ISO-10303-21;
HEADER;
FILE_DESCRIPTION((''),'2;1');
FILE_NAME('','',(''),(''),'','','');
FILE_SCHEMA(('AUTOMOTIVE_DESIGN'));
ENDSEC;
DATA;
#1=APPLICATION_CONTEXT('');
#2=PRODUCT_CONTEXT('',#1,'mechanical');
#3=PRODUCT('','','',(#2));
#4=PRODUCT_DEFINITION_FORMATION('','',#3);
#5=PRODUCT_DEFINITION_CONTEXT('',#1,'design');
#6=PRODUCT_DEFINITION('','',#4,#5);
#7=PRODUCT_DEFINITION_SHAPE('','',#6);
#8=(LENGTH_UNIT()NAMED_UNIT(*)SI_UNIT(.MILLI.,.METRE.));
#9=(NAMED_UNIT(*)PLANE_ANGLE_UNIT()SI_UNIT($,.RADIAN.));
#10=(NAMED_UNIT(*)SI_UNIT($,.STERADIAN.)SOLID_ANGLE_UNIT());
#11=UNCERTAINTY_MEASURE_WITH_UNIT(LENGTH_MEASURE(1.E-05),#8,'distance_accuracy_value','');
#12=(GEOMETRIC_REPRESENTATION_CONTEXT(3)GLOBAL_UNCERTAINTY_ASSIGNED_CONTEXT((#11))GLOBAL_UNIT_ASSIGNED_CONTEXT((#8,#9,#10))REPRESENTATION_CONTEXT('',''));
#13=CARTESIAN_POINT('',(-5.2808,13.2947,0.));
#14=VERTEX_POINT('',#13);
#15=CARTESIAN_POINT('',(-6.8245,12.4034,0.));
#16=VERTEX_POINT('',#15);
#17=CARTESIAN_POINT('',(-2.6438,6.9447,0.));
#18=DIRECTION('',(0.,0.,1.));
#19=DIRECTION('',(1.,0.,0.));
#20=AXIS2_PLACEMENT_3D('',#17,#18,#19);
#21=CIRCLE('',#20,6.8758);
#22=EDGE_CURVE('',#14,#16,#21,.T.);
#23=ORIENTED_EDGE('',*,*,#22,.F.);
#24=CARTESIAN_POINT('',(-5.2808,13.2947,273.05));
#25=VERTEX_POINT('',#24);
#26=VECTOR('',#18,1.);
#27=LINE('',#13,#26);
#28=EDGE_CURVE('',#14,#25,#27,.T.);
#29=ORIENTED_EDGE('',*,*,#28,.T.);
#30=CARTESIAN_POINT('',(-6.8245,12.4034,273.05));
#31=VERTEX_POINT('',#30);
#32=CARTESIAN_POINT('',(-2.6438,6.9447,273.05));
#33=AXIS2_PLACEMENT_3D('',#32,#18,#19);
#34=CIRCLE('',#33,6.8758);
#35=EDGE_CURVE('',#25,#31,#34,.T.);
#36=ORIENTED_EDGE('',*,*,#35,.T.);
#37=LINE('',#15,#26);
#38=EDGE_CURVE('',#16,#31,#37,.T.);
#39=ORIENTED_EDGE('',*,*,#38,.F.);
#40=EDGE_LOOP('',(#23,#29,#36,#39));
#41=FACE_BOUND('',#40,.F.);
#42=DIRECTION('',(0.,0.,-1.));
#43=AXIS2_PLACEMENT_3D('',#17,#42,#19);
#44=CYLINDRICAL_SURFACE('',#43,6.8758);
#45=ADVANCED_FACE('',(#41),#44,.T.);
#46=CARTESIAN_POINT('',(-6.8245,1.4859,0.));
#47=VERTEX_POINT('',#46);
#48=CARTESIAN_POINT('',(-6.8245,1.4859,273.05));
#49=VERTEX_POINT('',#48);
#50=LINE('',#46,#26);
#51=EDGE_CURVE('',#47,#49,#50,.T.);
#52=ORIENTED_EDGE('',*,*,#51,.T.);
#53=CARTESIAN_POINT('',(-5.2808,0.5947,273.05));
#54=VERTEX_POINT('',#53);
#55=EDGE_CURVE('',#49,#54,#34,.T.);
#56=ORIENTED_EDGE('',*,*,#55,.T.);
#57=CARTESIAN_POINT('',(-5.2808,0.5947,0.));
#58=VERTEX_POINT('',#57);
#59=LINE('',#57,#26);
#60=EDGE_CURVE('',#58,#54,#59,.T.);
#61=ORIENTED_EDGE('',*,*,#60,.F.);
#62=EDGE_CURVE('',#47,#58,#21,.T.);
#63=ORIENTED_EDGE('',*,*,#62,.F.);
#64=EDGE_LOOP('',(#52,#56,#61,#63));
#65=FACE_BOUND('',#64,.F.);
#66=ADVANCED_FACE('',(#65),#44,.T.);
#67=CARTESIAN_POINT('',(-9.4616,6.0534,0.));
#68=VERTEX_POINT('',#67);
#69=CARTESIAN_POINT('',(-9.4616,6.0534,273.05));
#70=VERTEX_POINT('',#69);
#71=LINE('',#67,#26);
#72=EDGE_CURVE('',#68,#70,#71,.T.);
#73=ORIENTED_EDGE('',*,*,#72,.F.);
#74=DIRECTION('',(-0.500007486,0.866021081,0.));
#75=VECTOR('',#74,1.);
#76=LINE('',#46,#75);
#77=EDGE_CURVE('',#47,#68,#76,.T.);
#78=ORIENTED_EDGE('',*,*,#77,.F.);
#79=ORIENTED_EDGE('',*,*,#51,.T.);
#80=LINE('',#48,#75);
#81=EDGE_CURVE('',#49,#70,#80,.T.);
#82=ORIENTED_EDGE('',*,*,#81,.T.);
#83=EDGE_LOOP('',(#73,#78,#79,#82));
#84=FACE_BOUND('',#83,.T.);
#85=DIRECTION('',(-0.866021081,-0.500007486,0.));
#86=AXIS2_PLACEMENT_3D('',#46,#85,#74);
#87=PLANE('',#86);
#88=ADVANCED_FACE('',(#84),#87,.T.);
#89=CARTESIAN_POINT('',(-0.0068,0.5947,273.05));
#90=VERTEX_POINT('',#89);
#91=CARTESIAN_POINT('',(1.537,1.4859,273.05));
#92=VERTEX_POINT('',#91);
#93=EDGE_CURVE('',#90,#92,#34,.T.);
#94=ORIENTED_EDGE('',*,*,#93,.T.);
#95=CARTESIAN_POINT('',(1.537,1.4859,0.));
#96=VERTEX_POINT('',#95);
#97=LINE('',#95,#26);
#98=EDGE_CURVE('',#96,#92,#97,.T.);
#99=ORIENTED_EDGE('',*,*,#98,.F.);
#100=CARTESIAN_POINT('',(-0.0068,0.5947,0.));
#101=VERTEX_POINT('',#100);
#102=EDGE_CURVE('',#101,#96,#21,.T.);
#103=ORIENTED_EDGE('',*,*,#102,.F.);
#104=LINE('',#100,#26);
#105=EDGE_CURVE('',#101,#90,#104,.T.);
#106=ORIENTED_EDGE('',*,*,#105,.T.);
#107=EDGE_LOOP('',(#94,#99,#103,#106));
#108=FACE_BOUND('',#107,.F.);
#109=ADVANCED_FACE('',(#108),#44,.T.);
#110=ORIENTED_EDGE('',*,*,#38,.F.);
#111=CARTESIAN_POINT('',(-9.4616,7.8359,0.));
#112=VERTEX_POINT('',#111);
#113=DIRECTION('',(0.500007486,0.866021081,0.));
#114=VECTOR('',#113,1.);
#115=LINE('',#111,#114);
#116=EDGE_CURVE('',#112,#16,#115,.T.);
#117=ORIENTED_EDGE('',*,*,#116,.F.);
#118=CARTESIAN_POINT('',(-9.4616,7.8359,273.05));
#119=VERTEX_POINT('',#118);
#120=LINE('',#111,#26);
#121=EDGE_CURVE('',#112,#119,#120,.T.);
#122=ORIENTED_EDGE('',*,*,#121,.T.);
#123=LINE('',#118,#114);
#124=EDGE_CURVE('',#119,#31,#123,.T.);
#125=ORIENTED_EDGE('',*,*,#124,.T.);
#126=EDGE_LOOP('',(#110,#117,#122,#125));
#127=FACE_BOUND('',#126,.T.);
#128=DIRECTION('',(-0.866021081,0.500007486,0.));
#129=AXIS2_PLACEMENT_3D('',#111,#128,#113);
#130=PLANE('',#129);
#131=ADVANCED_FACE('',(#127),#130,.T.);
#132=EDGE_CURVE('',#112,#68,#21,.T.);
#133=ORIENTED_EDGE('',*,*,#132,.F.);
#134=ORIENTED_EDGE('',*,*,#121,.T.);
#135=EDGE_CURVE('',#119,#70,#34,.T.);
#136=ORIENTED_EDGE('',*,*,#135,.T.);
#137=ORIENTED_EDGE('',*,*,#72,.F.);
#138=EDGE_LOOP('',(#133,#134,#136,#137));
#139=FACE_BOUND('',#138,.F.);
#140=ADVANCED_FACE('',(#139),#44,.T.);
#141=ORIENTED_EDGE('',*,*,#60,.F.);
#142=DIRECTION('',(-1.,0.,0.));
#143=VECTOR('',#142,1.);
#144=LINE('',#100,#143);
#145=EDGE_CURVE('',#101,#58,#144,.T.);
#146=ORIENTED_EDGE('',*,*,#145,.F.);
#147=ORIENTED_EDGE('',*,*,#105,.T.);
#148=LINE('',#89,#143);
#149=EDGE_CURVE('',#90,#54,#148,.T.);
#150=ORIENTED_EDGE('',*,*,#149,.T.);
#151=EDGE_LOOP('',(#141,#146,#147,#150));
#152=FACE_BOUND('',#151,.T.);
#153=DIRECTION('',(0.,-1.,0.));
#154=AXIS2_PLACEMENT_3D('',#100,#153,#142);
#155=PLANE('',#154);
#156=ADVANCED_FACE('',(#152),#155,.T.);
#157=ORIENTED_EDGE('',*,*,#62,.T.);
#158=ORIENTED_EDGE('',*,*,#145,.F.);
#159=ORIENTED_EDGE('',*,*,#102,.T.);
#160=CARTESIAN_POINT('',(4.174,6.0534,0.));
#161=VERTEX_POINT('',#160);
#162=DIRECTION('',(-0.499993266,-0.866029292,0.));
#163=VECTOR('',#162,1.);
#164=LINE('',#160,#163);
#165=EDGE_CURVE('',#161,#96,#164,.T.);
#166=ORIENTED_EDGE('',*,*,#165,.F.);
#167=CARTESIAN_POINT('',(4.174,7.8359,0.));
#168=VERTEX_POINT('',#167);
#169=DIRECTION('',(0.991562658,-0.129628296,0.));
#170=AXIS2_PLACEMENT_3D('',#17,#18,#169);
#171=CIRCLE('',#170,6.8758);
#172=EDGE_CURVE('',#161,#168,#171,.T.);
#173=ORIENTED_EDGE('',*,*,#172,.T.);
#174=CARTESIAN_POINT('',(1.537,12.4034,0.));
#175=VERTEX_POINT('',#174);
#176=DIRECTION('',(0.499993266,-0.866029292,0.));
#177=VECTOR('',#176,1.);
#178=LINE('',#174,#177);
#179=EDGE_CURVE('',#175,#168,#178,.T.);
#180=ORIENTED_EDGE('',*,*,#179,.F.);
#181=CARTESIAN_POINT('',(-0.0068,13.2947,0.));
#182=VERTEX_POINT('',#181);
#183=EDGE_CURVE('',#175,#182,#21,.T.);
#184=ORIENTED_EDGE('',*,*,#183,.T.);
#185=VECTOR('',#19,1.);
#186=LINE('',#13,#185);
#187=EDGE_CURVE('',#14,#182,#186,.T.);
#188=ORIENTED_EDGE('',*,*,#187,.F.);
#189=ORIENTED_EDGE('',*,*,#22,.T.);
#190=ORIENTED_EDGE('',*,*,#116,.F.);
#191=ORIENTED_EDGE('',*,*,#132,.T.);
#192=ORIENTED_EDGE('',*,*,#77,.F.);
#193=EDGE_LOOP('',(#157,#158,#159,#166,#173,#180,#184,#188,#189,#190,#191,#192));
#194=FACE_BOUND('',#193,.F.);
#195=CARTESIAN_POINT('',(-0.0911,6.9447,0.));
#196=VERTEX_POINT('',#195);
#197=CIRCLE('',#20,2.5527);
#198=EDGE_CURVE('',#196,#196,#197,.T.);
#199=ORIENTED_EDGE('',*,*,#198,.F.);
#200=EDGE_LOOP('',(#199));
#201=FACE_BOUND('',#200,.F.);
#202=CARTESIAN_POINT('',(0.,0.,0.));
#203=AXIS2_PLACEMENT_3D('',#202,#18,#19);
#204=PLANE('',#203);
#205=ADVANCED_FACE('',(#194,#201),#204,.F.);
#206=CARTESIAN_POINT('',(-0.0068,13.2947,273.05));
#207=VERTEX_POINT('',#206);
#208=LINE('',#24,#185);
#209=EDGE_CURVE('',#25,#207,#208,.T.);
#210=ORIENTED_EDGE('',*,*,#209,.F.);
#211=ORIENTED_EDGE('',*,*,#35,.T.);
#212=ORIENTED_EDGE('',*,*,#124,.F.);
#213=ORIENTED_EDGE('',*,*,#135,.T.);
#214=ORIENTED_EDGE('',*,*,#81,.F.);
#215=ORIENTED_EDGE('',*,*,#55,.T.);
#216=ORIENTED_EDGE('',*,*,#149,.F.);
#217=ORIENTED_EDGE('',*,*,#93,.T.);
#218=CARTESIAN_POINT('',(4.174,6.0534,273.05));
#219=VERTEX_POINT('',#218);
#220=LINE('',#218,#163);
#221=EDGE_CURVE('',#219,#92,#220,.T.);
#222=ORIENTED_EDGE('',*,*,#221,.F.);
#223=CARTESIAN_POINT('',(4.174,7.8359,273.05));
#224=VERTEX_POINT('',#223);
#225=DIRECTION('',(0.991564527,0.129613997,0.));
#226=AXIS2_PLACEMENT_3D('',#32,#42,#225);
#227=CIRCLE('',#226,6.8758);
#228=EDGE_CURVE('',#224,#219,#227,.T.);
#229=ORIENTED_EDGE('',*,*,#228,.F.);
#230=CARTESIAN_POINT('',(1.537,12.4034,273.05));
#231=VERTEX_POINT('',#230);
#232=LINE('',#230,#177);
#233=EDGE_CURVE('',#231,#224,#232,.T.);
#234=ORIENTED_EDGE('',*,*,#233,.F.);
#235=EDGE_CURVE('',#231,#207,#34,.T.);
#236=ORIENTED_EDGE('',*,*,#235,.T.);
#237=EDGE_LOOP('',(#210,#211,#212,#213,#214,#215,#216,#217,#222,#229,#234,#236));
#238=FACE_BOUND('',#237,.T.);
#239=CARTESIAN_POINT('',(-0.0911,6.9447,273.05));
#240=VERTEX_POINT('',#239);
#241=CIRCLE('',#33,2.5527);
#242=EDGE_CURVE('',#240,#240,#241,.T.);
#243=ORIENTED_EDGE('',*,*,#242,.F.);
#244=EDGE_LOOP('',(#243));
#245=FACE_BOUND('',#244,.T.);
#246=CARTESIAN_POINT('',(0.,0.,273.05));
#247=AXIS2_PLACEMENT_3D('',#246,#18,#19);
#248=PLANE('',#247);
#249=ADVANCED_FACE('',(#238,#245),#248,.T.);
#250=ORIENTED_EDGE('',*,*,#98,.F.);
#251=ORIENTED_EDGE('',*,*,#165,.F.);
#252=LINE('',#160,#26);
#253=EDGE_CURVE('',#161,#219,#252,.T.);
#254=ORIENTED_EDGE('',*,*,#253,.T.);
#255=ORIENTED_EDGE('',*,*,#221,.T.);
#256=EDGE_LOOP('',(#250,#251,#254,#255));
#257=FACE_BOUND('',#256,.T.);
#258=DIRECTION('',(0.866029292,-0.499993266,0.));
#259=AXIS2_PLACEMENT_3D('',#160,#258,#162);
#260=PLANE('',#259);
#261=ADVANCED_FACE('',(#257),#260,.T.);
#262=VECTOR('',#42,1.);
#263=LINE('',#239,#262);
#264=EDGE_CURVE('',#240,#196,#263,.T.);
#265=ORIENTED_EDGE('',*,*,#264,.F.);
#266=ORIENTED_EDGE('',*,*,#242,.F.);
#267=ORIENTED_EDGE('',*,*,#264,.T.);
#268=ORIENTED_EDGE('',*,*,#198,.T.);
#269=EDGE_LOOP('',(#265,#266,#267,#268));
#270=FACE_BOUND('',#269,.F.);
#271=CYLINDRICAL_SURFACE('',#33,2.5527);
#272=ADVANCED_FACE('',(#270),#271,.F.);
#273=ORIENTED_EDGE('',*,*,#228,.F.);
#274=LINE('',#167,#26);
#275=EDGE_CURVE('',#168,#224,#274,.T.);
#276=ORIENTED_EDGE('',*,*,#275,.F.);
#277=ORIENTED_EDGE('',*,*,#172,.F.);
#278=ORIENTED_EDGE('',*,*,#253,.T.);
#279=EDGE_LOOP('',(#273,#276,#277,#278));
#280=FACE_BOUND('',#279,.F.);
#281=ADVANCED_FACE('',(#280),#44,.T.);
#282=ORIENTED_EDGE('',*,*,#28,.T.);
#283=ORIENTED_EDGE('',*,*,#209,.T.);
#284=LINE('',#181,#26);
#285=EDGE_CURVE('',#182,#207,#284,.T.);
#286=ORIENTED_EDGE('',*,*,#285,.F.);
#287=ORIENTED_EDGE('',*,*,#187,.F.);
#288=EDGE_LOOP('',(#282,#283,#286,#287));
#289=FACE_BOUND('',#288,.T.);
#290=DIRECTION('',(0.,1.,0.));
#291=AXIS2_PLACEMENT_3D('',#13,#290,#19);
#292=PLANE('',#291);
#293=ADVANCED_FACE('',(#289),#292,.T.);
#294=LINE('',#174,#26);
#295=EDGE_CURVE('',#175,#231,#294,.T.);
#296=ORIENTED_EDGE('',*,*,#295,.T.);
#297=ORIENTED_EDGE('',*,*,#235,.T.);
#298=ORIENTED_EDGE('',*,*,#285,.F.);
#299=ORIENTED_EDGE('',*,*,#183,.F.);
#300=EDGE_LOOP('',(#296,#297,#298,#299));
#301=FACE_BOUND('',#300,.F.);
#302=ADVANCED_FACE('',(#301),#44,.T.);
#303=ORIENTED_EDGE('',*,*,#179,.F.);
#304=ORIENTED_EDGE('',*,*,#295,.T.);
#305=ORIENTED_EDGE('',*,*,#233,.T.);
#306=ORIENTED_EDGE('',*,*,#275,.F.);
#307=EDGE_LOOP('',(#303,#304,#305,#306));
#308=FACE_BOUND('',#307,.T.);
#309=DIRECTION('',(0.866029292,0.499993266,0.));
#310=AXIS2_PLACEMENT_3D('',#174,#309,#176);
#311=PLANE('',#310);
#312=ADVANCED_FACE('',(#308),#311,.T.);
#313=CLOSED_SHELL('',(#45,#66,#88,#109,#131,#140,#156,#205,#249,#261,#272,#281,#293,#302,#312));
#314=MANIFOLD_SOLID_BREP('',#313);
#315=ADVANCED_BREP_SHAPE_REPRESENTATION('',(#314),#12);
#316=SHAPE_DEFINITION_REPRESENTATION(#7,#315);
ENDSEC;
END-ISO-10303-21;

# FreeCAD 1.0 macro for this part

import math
import FreeCAD as App
import Part
import Sketcher
Q = App.Units.Quantity

doc = App.newDocument("Part")
params = doc.addObject("Spreadsheet::Sheet", "Params")
for row, (alias, value) in enumerate([
    ("pad1_length", "10.75 in"),
    ("sketch2_diameter", "0.201 in"),
    ("pocket1_length", "10.75 in"),
], start=1):
    params.set(f"A{row}", alias)
    params.set(f"B{row}", "=" + value)
    params.setAlias(f"B{row}", alias)

body = doc.addObject("PartDesign::Body", "Body")

sketch1 = body.newObject("Sketcher::SketchObject", "Sketch")
sketch1.AttachmentSupport = (doc.getObject("XY_Plane"), [""])
sketch1.MapMode = "FlatFace"
sketch1.addGeometry([
    Part.ArcOfCircle(Part.Circle(App.Vector(-2.6438, 6.9447, 0), App.Vector(0, 0, 1), 6.8758), math.radians(-7.448114), math.radians(7.447287)),
    Part.LineSegment(App.Vector(4.174, 7.8359, 0), App.Vector(1.537, 12.4034, 0)),
    Part.ArcOfCircle(Part.Circle(App.Vector(-2.6438, 6.9447, 0), App.Vector(0, 0, 1), 6.8758), math.radians(52.551618), math.radians(67.448081)),
    Part.LineSegment(App.Vector(-0.0068, 13.2947, 0), App.Vector(-5.2808, 13.2947, 0)),
    Part.ArcOfCircle(Part.Circle(App.Vector(-2.6438, 6.9447, 0), App.Vector(0, 0, 1), 6.8758), math.radians(112.551919), math.radians(127.447721)),
    Part.LineSegment(App.Vector(-6.8245, 12.4034, 0), App.Vector(-9.4616, 7.8359, 0)),
    Part.ArcOfCircle(Part.Circle(App.Vector(-2.6438, 6.9447, 0), App.Vector(0, 0, 1), 6.8758), math.radians(172.552713), math.radians(187.448114)),
    Part.LineSegment(App.Vector(-9.4616, 6.0534, 0), App.Vector(-6.8245, 1.4859, 0)),
    Part.ArcOfCircle(Part.Circle(App.Vector(-2.6438, 6.9447, 0), App.Vector(0, 0, 1), 6.8758), math.radians(-127.447214), math.radians(-112.551919)),
    Part.LineSegment(App.Vector(-5.2808, 0.5947, 0), App.Vector(-0.0068, 0.5947, 0)),
    Part.ArcOfCircle(Part.Circle(App.Vector(-2.6438, 6.9447, 0), App.Vector(0, 0, 1), 6.8758), math.radians(-67.448081), math.radians(-52.552124)),
    Part.LineSegment(App.Vector(1.537, 1.4859, 0), App.Vector(4.174, 6.0534, 0)),
], False)
sketch1.addConstraint([
    Sketcher.Constraint("Coincident", 0, 2, 1, 1),
    Sketcher.Constraint("Coincident", 1, 2, 2, 1),
    Sketcher.Constraint("Coincident", 2, 2, 3, 1),
    Sketcher.Constraint("Coincident", 3, 2, 4, 1),
    Sketcher.Constraint("Coincident", 4, 2, 5, 1),
    Sketcher.Constraint("Coincident", 5, 2, 6, 1),
    Sketcher.Constraint("Coincident", 6, 2, 7, 1),
    Sketcher.Constraint("Coincident", 7, 2, 8, 1),
    Sketcher.Constraint("Coincident", 8, 2, 9, 1),
    Sketcher.Constraint("Coincident", 9, 2, 10, 1),
    Sketcher.Constraint("Coincident", 10, 2, 11, 1),
    Sketcher.Constraint("Coincident", 11, 2, 0, 1),
    Sketcher.Constraint("Horizontal", 3),
    Sketcher.Constraint("Horizontal", 9),
    Sketcher.Constraint("Coincident", 2, 3, 0, 3),
    Sketcher.Constraint("Coincident", 4, 3, 0, 3),
    Sketcher.Constraint("Coincident", 6, 3, 0, 3),
    Sketcher.Constraint("Coincident", 8, 3, 0, 3),
    Sketcher.Constraint("Coincident", 10, 3, 0, 3),
    Sketcher.Constraint("Equal", 0, 2),
    Sketcher.Constraint("Equal", 2, 4),
    Sketcher.Constraint("Equal", 4, 6),
    Sketcher.Constraint("Equal", 6, 8),
    Sketcher.Constraint("Equal", 8, 10),
    Sketcher.Constraint("Parallel", 1, 7),
    Sketcher.Constraint("Parallel", 5, 11),
    Sketcher.Constraint("Horizontal", 1, 2, 4, 2),
    Sketcher.Constraint("Horizontal", 0, 2, 5, 2),
    Sketcher.Constraint("Horizontal", 7, 2, 10, 2),
    Sketcher.Constraint("Vertical", 5, 2, 6, 2),
    Sketcher.Constraint("Vertical", 3, 2, 8, 2),
    Sketcher.Constraint("Radius", 0, Q("0.2707 in")),
    Sketcher.Constraint("Angle", 1, Q("119.9996 deg")),
    Sketcher.Constraint("DistanceY", 0, 3, 2, 2, Q("0.25 in")),
    Sketcher.Constraint("DistanceY", 10, 2, 0, 2, Q("0.25 in")),
    Sketcher.Constraint("DistanceY", -1, 1, 0, 2, Q("0.3085 in")),
    Sketcher.Constraint("DistanceX", -1, 1, 1, 2, Q("0.0605 in")),
])
pad1 = body.newObject("PartDesign::Pad", "Pad")
pad1.Profile = sketch1
pad1.setExpression("Length", "Params.pad1_length")

sketch2 = body.newObject("Sketcher::SketchObject", "Sketch001")
sketch2.AttachmentSupport = (doc.getObject("XY_Plane"), [""])
sketch2.MapMode = "FlatFace"
sketch2.AttachmentOffset = App.Placement(App.Vector(0, 0, 10.75 * 25.4), App.Rotation())
sketch2.addGeometry(Part.Circle(App.Vector(-2.6438, 6.9447, 0), App.Vector(0, 0, 1), 2.5527), False)
sketch2.addConstraint([
    Sketcher.Constraint("Diameter", 0, Q("0.201 in")),
    Sketcher.Constraint("DistanceX", 0, 3, -1, 1, 2.6438),
    Sketcher.Constraint("DistanceY", -1, 1, 0, 3, 6.9447),
])
sketch2.setExpression("Constraints[0]", "Params.sketch2_diameter")
pocket1 = body.newObject("PartDesign::Pocket", "Pocket")
pocket1.Profile = sketch2
pocket1.setExpression("Length", "Params.pocket1_length")

doc.recompute()
